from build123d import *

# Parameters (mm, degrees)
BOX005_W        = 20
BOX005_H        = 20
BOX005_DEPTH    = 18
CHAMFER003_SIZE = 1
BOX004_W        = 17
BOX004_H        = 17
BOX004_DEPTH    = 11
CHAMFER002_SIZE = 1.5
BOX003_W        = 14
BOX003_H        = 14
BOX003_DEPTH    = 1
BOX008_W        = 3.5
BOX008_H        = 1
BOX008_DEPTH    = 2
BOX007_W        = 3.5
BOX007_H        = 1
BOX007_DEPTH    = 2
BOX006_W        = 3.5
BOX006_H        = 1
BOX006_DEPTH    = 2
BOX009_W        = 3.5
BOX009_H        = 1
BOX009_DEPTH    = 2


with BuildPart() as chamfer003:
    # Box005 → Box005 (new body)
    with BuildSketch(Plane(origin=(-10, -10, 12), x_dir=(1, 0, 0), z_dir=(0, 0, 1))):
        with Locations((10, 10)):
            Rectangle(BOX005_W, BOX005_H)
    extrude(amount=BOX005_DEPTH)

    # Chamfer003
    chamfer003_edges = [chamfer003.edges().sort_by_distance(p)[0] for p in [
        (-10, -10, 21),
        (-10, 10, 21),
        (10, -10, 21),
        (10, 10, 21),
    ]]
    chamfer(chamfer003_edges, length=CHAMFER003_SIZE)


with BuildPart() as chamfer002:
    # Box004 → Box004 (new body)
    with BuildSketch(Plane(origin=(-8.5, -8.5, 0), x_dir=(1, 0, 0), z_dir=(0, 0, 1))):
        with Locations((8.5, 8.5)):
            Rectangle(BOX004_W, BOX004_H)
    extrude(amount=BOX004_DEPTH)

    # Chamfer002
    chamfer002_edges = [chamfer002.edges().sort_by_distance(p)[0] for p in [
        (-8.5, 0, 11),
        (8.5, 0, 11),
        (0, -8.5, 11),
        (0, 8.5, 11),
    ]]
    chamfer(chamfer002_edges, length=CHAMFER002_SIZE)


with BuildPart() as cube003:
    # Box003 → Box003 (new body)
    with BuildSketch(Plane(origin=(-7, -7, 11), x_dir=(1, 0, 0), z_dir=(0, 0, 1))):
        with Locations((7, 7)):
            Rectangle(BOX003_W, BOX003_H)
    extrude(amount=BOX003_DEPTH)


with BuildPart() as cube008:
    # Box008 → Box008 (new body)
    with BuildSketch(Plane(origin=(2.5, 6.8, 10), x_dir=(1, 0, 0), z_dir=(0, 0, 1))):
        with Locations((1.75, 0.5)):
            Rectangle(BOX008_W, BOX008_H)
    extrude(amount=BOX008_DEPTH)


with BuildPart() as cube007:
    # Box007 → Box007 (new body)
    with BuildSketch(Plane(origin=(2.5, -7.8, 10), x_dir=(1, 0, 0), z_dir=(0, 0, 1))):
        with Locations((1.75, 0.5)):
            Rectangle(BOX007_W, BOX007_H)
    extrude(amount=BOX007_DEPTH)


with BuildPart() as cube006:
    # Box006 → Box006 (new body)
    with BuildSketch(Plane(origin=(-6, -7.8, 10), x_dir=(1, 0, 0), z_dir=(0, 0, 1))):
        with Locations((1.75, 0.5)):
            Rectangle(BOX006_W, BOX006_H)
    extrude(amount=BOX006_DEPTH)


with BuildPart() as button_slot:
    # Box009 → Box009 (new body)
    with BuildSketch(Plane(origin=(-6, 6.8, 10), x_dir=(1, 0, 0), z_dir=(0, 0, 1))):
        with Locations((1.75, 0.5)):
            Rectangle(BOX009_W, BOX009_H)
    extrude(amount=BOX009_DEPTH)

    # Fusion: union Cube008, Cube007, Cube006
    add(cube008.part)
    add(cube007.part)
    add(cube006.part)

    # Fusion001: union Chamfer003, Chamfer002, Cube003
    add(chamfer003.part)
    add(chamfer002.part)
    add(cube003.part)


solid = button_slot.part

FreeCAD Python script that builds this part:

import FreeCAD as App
import Part
import Sketcher
from FreeCAD import Vector
Q = App.Units.Quantity


def edges_at(feature, points):
    """Names of the edges that pass closest to the given points."""
    edges = feature.Shape.Edges
    near = lambda p: min(range(len(edges)), key=lambda i: edges[i].distToShape(Part.Vertex(*p))[0])
    return sorted({f"Edge{near(p) + 1}" for p in points})

doc = App.newDocument("Part")
body = doc.addObject("PartDesign::Body", "Body")

# Sketch on XY plane
sketch1 = body.newObject("Sketcher::SketchObject", "Sketch")
sketch1.AttachmentSupport = (doc.getObject("XY_Plane"), [""])
sketch1.MapMode = "FlatFace"
sketch1.AttachmentOffset = App.Placement(Vector(0, 0, 12), App.Rotation())
sketch1.addGeometry([
    Part.LineSegment(Vector(-10, 10, 0), Vector(-10, -10, 0)),
    Part.LineSegment(Vector(-10, -10, 0), Vector(10, -10, 0)),
    Part.LineSegment(Vector(10, -10, 0), Vector(10, 10, 0)),
    Part.LineSegment(Vector(10, 10, 0), Vector(-10, 10, 0)),
], False)
sketch1.addConstraint([
    Sketcher.Constraint("Coincident", 0, 2, 1, 1),
    Sketcher.Constraint("Coincident", 1, 2, 2, 1),
    Sketcher.Constraint("Coincident", 2, 2, 3, 1),
    Sketcher.Constraint("Coincident", 3, 2, 0, 1),
    Sketcher.Constraint("Vertical", 0),
    Sketcher.Constraint("Horizontal", 1),
    Sketcher.Constraint("Vertical", 2),
    Sketcher.Constraint("Horizontal", 3),
    Sketcher.Constraint("Symmetric", 0, 2, 2, 2, -1, 1),
    Sketcher.Constraint("Equal", 3, 0),
    Sketcher.Constraint("DistanceX", 1, 1, 1, 2, Q("20 mm")),
])
pad1 = body.newObject("PartDesign::Pad", "Pad")
pad1.Profile = sketch1
pad1.Length = 18
doc.recompute()

chamfer = body.newObject("PartDesign::Chamfer", "Chamfer")
chamfer.Base = (pad1, edges_at(pad1, [
    (-10, -10, 21),
    (-10, 10, 21),
    (10, -10, 21),
    (10, 10, 21),
]))
chamfer.Size = 1
body2 = doc.addObject("PartDesign::Body", "Body001")

# Sketch on XY plane
sketch2 = body2.newObject("Sketcher::SketchObject", "Sketch001")
sketch2.AttachmentSupport = (doc.getObject("XY_Plane001"), [""])
sketch2.MapMode = "FlatFace"
sketch2.addGeometry([
    Part.LineSegment(Vector(-8, 8, 0), Vector(-8, -8, 0)),
    Part.LineSegment(Vector(-8, -8, 0), Vector(8, -8, 0)),
    Part.LineSegment(Vector(8, -8, 0), Vector(8, 8, 0)),
    Part.LineSegment(Vector(8, 8, 0), Vector(-8, 8, 0)),
], False)
sketch2.addConstraint([
    Sketcher.Constraint("Coincident", 0, 2, 1, 1),
    Sketcher.Constraint("Coincident", 1, 2, 2, 1),
    Sketcher.Constraint("Coincident", 2, 2, 3, 1),
    Sketcher.Constraint("Coincident", 3, 2, 0, 1),
    Sketcher.Constraint("Vertical", 0),
    Sketcher.Constraint("Horizontal", 1),
    Sketcher.Constraint("Vertical", 2),
    Sketcher.Constraint("Horizontal", 3),
    Sketcher.Constraint("Symmetric", 0, 2, 2, 2, -1, 1),
    Sketcher.Constraint("Equal", 3, 0),
    Sketcher.Constraint("DistanceX", 1, 1, 1, 2, Q("17 mm")),
])
pad2 = body2.newObject("PartDesign::Pad", "Pad001")
pad2.Profile = sketch2
pad2.Length = 11
doc.recompute()

chamfer2 = body2.newObject("PartDesign::Chamfer", "Chamfer001")
chamfer2.Base = (pad2, edges_at(pad2, [
    (-8.5, 0, 11),
    (8.5, 0, 11),
    (0, -8.5, 11),
    (0, 8.5, 11),
]))
chamfer2.Size = 1.5
body3 = doc.addObject("PartDesign::Body", "Body002")

# Sketch on XY plane
sketch3 = body3.newObject("Sketcher::SketchObject", "Sketch002")
sketch3.AttachmentSupport = (doc.getObject("XY_Plane002"), [""])
sketch3.MapMode = "FlatFace"
sketch3.AttachmentOffset = App.Placement(Vector(0, 0, 11), App.Rotation())
sketch3.addGeometry([
    Part.LineSegment(Vector(-7, 7, 0), Vector(-7, -7, 0)),
    Part.LineSegment(Vector(-7, -7, 0), Vector(7, -7, 0)),
    Part.LineSegment(Vector(7, -7, 0), Vector(7, 7, 0)),
    Part.LineSegment(Vector(7, 7, 0), Vector(-7, 7, 0)),
], False)
sketch3.addConstraint([
    Sketcher.Constraint("Coincident", 0, 2, 1, 1),
    Sketcher.Constraint("Coincident", 1, 2, 2, 1),
    Sketcher.Constraint("Coincident", 2, 2, 3, 1),
    Sketcher.Constraint("Coincident", 3, 2, 0, 1),
    Sketcher.Constraint("Vertical", 0),
    Sketcher.Constraint("Horizontal", 1),
    Sketcher.Constraint("Vertical", 2),
    Sketcher.Constraint("Horizontal", 3),
    Sketcher.Constraint("Symmetric", 0, 2, 2, 2, -1, 1),
    Sketcher.Constraint("Equal", 3, 0),
    Sketcher.Constraint("DistanceX", 1, 1, 1, 2, Q("14 mm")),
])
pad3 = body3.newObject("PartDesign::Pad", "Pad002")
pad3.Profile = sketch3
pad3.Length = 1
body4 = doc.addObject("PartDesign::Body", "Body003")

# Sketch on XY plane
sketch4 = body4.newObject("Sketcher::SketchObject", "Sketch003")
sketch4.AttachmentSupport = (doc.getObject("XY_Plane003"), [""])
sketch4.MapMode = "FlatFace"
sketch4.AttachmentOffset = App.Placement(Vector(0, 0, 10), App.Rotation())
sketch4.addGeometry([
    Part.LineSegment(Vector(2.5, 7.8, 0), Vector(2.5, 6.8, 0)),
    Part.LineSegment(Vector(2.5, 6.8, 0), Vector(6, 6.8, 0)),
    Part.LineSegment(Vector(6, 6.8, 0), Vector(6, 7.8, 0)),
    Part.LineSegment(Vector(6, 7.8, 0), Vector(2.5, 7.8, 0)),
], False)
sketch4.addConstraint([
    Sketcher.Constraint("Coincident", 0, 2, 1, 1),
    Sketcher.Constraint("Coincident", 1, 2, 2, 1),
    Sketcher.Constraint("Coincident", 2, 2, 3, 1),
    Sketcher.Constraint("Coincident", 3, 2, 0, 1),
    Sketcher.Constraint("Vertical", 0),
    Sketcher.Constraint("Horizontal", 1),
    Sketcher.Constraint("Vertical", 2),
    Sketcher.Constraint("Horizontal", 3),
    Sketcher.Constraint("DistanceY", 0, 2, 0, 1, Q("1 mm")),
    Sketcher.Constraint("DistanceX", 1, 1, 1, 2, Q("3.5 mm")),
    Sketcher.Constraint("DistanceX", -1, 1, 1, 2, Q("6 mm")),
    Sketcher.Constraint("DistanceY", -1, 1, 0, 2, Q("6.8 mm")),
])
pad4 = body4.newObject("PartDesign::Pad", "Pad003")
pad4.Profile = sketch4
pad4.Length = 2
body5 = doc.addObject("PartDesign::Body", "Body004")

# Sketch on XY plane
sketch5 = body5.newObject("Sketcher::SketchObject", "Sketch004")
sketch5.AttachmentSupport = (doc.getObject("XY_Plane004"), [""])
sketch5.MapMode = "FlatFace"
sketch5.AttachmentOffset = App.Placement(Vector(0, 0, 10), App.Rotation())
sketch5.addGeometry([
    Part.LineSegment(Vector(2.5, -6.8, 0), Vector(2.5, -7.8, 0)),
    Part.LineSegment(Vector(2.5, -7.8, 0), Vector(6, -7.8, 0)),
    Part.LineSegment(Vector(6, -7.8, 0), Vector(6, -6.8, 0)),
    Part.LineSegment(Vector(6, -6.8, 0), Vector(2.5, -6.8, 0)),
], False)
sketch5.addConstraint([
    Sketcher.Constraint("Coincident", 0, 2, 1, 1),
    Sketcher.Constraint("Coincident", 1, 2, 2, 1),
    Sketcher.Constraint("Coincident", 2, 2, 3, 1),
    Sketcher.Constraint("Coincident", 3, 2, 0, 1),
    Sketcher.Constraint("Vertical", 0),
    Sketcher.Constraint("Horizontal", 1),
    Sketcher.Constraint("Vertical", 2),
    Sketcher.Constraint("Horizontal", 3),
    Sketcher.Constraint("DistanceY", 0, 2, 0, 1, Q("1 mm")),
    Sketcher.Constraint("DistanceX", 1, 1, 1, 2, Q("3.5 mm")),
    Sketcher.Constraint("DistanceX", -1, 1, 1, 2, Q("6 mm")),
    Sketcher.Constraint("DistanceY", 0, 2, -1, 1, Q("7.8 mm")),
])
pad5 = body5.newObject("PartDesign::Pad", "Pad004")
pad5.Profile = sketch5
pad5.Length = 2
body6 = doc.addObject("PartDesign::Body", "Body005")

# Sketch on XY plane
sketch6 = body6.newObject("Sketcher::SketchObject", "Sketch005")
sketch6.AttachmentSupport = (doc.getObject("XY_Plane005"), [""])
sketch6.MapMode = "FlatFace"
sketch6.AttachmentOffset = App.Placement(Vector(0, 0, 10), App.Rotation())
sketch6.addGeometry([
    Part.LineSegment(Vector(-6, -6.8, 0), Vector(-6, -7.8, 0)),
    Part.LineSegment(Vector(-6, -7.8, 0), Vector(-2.5, -7.8, 0)),
    Part.LineSegment(Vector(-2.5, -7.8, 0), Vector(-2.5, -6.8, 0)),
    Part.LineSegment(Vector(-2.5, -6.8, 0), Vector(-6, -6.8, 0)),
], False)
sketch6.addConstraint([
    Sketcher.Constraint("Coincident", 0, 2, 1, 1),
    Sketcher.Constraint("Coincident", 1, 2, 2, 1),
    Sketcher.Constraint("Coincident", 2, 2, 3, 1),
    Sketcher.Constraint("Coincident", 3, 2, 0, 1),
    Sketcher.Constraint("Vertical", 0),
    Sketcher.Constraint("Horizontal", 1),
    Sketcher.Constraint("Vertical", 2),
    Sketcher.Constraint("Horizontal", 3),
    Sketcher.Constraint("DistanceY", 0, 2, 0, 1, Q("1 mm")),
    Sketcher.Constraint("DistanceX", 1, 1, 1, 2, Q("3.5 mm")),
    Sketcher.Constraint("DistanceX", 0, 2, -1, 1, Q("6 mm")),
    Sketcher.Constraint("DistanceY", 0, 2, -1, 1, Q("7.8 mm")),
])
pad6 = body6.newObject("PartDesign::Pad", "Pad005")
pad6.Profile = sketch6
pad6.Length = 2
body7 = doc.addObject("PartDesign::Body", "Body006")
body7.AllowCompound = True

# Sketch on XY plane
sketch7 = body7.newObject("Sketcher::SketchObject", "Sketch006")
sketch7.AttachmentSupport = (doc.getObject("XY_Plane006"), [""])
sketch7.MapMode = "FlatFace"
sketch7.AttachmentOffset = App.Placement(Vector(0, 0, 10), App.Rotation())
sketch7.addGeometry([
    Part.LineSegment(Vector(-6, 7.8, 0), Vector(-6, 6.8, 0)),
    Part.LineSegment(Vector(-6, 6.8, 0), Vector(-2.5, 6.8, 0)),
    Part.LineSegment(Vector(-2.5, 6.8, 0), Vector(-2.5, 7.8, 0)),
    Part.LineSegment(Vector(-2.5, 7.8, 0), Vector(-6, 7.8, 0)),
], False)
sketch7.addConstraint([
    Sketcher.Constraint("Coincident", 0, 2, 1, 1),
    Sketcher.Constraint("Coincident", 1, 2, 2, 1),
    Sketcher.Constraint("Coincident", 2, 2, 3, 1),
    Sketcher.Constraint("Coincident", 3, 2, 0, 1),
    Sketcher.Constraint("Vertical", 0),
    Sketcher.Constraint("Horizontal", 1),
    Sketcher.Constraint("Vertical", 2),
    Sketcher.Constraint("Horizontal", 3),
    Sketcher.Constraint("DistanceY", 0, 2, 0, 1, Q("1 mm")),
    Sketcher.Constraint("DistanceX", 1, 1, 1, 2, Q("3.5 mm")),
    Sketcher.Constraint("DistanceX", 0, 2, -1, 1, Q("6 mm")),
    Sketcher.Constraint("DistanceY", -1, 1, 0, 2, Q("6.8 mm")),
])
pad7 = body7.newObject("PartDesign::Pad", "Pad006")
pad7.Profile = sketch7
pad7.Length = 2
doc.recompute()

boolean = body7.newObject("PartDesign::Boolean", "Boolean")
boolean.Type = "Fuse"
boolean.addObjects([body4])
doc.recompute()

boolean2 = body7.newObject("PartDesign::Boolean", "Boolean001")
boolean2.Type = "Fuse"
boolean2.addObjects([body5])
doc.recompute()

boolean3 = body7.newObject("PartDesign::Boolean", "Boolean002")
boolean3.Type = "Fuse"
boolean3.addObjects([body6])
doc.recompute()

boolean4 = body7.newObject("PartDesign::Boolean", "Boolean003")
boolean4.Type = "Fuse"
boolean4.addObjects([body])
doc.recompute()

boolean5 = body7.newObject("PartDesign::Boolean", "Boolean004")
boolean5.Type = "Fuse"
boolean5.addObjects([body2])
doc.recompute()

boolean6 = body7.newObject("PartDesign::Boolean", "Boolean005")
boolean6.Type = "Fuse"
boolean6.addObjects([body3])

doc.recompute()
